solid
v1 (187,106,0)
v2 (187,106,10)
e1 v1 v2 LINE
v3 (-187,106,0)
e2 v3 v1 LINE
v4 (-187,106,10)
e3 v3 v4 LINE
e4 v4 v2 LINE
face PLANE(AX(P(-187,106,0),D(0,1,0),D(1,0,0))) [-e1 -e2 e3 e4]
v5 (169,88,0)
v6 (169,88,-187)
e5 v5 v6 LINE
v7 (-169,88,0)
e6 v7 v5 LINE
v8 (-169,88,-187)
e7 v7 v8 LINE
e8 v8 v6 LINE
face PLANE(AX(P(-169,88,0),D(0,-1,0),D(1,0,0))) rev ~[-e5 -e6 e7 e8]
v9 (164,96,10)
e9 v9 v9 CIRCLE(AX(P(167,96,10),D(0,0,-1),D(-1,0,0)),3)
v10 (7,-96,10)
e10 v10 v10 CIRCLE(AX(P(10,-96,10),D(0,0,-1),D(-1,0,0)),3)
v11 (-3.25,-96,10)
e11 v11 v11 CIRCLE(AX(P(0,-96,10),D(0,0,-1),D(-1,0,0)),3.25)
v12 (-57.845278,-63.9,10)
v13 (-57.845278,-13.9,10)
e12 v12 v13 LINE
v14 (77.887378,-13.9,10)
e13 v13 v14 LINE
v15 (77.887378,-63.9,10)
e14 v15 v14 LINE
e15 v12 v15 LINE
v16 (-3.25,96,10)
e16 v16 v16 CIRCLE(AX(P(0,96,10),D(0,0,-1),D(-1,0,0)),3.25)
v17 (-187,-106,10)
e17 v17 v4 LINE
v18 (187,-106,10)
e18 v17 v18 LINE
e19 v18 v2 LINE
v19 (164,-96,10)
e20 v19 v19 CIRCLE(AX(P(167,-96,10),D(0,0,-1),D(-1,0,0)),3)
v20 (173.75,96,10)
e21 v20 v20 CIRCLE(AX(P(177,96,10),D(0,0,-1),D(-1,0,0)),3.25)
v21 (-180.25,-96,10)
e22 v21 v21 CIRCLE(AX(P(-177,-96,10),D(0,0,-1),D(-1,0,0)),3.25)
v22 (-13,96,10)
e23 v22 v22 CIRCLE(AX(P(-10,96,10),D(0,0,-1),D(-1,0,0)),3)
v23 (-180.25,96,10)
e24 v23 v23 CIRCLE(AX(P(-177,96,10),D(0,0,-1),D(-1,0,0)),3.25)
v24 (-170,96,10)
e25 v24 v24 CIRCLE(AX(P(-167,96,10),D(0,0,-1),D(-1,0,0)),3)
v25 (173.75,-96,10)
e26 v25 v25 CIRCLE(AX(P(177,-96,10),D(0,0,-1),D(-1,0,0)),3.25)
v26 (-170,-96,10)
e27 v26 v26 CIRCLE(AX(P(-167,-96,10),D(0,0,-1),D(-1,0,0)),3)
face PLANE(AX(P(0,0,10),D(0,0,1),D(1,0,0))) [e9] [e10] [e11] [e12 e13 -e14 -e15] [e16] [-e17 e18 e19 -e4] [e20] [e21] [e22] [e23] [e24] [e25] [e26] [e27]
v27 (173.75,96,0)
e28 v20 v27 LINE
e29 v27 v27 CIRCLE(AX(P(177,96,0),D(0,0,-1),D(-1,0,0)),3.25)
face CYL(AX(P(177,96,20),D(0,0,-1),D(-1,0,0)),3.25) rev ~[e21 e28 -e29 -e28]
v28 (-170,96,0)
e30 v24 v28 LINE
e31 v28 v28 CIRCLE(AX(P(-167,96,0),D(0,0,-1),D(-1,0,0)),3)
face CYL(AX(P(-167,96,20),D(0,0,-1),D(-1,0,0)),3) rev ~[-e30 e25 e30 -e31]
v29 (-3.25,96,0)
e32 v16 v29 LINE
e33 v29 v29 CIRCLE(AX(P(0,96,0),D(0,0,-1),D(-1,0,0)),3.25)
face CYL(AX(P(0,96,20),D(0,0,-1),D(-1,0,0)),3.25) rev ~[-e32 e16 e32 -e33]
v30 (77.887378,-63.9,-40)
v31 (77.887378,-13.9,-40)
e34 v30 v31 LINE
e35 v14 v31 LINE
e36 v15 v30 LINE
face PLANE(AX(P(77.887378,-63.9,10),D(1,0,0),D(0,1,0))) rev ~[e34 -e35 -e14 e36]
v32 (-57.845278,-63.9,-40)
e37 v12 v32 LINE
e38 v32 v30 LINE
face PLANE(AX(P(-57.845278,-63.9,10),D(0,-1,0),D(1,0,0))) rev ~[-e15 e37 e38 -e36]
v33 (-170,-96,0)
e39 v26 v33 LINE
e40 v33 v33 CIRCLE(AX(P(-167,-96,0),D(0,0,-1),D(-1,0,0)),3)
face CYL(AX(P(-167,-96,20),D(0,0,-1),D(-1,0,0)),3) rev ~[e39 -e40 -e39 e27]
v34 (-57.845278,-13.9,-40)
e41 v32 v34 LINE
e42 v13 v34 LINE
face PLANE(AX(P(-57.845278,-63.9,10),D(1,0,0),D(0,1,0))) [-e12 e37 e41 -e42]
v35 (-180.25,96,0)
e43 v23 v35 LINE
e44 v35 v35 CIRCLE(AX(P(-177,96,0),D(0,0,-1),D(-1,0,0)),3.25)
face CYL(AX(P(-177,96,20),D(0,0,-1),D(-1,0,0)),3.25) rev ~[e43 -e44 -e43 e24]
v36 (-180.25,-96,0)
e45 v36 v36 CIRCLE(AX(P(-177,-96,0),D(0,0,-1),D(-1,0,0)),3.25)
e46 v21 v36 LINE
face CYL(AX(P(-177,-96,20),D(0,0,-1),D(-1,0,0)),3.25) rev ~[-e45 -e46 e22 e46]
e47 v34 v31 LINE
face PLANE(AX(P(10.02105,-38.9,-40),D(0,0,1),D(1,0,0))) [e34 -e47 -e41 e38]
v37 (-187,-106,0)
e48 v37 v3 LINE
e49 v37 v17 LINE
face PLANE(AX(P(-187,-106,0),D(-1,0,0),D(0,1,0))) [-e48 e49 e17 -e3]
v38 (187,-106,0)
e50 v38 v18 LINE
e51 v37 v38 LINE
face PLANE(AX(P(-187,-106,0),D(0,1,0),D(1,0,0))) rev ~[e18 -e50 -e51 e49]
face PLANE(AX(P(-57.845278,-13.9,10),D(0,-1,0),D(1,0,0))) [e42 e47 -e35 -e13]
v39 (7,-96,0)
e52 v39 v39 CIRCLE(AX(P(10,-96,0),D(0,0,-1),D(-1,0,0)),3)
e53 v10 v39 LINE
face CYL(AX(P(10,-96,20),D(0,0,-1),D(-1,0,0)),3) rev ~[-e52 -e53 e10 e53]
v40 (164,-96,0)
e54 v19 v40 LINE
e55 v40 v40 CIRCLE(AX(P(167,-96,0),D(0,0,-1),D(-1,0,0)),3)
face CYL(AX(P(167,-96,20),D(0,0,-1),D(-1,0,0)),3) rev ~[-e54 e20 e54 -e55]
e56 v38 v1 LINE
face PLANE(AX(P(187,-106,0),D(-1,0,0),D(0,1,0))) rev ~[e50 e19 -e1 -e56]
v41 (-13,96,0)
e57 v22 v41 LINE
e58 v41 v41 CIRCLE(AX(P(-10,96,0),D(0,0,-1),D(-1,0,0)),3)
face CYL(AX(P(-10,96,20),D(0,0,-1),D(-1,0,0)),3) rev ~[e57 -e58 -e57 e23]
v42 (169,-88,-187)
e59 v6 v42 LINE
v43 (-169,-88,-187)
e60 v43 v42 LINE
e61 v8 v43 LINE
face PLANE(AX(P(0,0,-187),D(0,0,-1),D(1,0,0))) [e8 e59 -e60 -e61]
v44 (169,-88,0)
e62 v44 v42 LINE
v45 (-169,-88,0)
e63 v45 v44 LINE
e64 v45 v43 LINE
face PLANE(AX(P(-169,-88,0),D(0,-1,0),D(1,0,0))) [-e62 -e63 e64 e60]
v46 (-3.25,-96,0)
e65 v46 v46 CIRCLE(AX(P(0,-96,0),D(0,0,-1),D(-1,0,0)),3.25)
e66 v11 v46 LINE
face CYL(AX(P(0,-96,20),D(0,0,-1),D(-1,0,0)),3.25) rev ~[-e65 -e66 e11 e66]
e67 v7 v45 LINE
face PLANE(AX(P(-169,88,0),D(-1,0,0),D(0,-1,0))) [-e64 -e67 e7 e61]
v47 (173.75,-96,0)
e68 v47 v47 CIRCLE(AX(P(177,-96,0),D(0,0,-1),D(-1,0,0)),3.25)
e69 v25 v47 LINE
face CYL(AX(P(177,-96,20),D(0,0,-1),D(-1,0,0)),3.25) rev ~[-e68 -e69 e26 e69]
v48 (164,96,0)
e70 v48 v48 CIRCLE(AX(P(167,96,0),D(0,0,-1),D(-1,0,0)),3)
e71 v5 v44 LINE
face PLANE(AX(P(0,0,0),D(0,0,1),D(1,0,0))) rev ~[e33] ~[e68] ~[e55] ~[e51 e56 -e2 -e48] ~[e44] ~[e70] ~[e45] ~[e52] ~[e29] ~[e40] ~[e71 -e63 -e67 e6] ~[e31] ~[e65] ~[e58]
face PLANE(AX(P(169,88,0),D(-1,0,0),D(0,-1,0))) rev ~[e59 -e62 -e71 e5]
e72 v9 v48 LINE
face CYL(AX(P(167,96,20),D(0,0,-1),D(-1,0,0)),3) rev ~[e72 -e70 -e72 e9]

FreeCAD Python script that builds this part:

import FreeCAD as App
import Part
import Sketcher
from FreeCAD import Vector

doc = App.newDocument("Part")
body = doc.addObject("PartDesign::Body", "Body")

# Sketch on XY plane
sketch1 = body.newObject("Sketcher::SketchObject", "Sketch")
sketch1.AttachmentSupport = (doc.getObject("XY_Plane"), [""])
sketch1.MapMode = "FlatFace"
sketch1.addGeometry([
    Part.LineSegment(Vector(-187, 106, 0), Vector(-187, -106, 0)),
    Part.LineSegment(Vector(-187, -106, 0), Vector(187, -106, 0)),
    Part.LineSegment(Vector(187, -106, 0), Vector(187, 106, 0)),
    Part.LineSegment(Vector(187, 106, 0), Vector(-187, 106, 0)),
], False)
sketch1.addConstraint([
    Sketcher.Constraint("Coincident", 0, 2, 1, 1),
    Sketcher.Constraint("Coincident", 1, 2, 2, 1),
    Sketcher.Constraint("Coincident", 2, 2, 3, 1),
    Sketcher.Constraint("Coincident", 3, 2, 0, 1),
    Sketcher.Constraint("Vertical", 0),
    Sketcher.Constraint("Horizontal", 1),
    Sketcher.Constraint("Vertical", 2),
    Sketcher.Constraint("Horizontal", 3),
    Sketcher.Constraint("Symmetric", 0, 2, 2, 2, -1, 1),
    Sketcher.Constraint("DistanceX", 1, 1, 1, 2, 374.0),
    Sketcher.Constraint("DistanceY", 0, 2, 0, 1, 212.0),
])
pad1 = body.newObject("PartDesign::Pad", "Pad")
pad1.Profile = sketch1
pad1.Length = 10

# Sketch on XY plane
sketch2 = body.newObject("Sketcher::SketchObject", "Sketch001")
sketch2.AttachmentSupport = (doc.getObject("XY_Plane"), [""])
sketch2.MapMode = "FlatFace"
sketch2.addGeometry([
    Part.LineSegment(Vector(-169, -88, 0), Vector(-169, 88, 0)),
    Part.LineSegment(Vector(-169, 88, 0), Vector(169, 88, 0)),
    Part.LineSegment(Vector(169, 88, 0), Vector(169, -88, 0)),
    Part.LineSegment(Vector(169, -88, 0), Vector(-169, -88, 0)),
], False)
sketch2.addConstraint([
    Sketcher.Constraint("Coincident", 0, 2, 1, 1),
    Sketcher.Constraint("Coincident", 1, 2, 2, 1),
    Sketcher.Constraint("Coincident", 2, 2, 3, 1),
    Sketcher.Constraint("Coincident", 3, 2, 0, 1),
    Sketcher.Constraint("Vertical", 0),
    Sketcher.Constraint("Horizontal", 1),
    Sketcher.Constraint("Vertical", 2),
    Sketcher.Constraint("Horizontal", 3),
    Sketcher.Constraint("Symmetric", 0, 2, 2, 2, -1, 1),
    Sketcher.Constraint("DistanceX", 1, 1, 1, 2, 338.0),
    Sketcher.Constraint("DistanceY", 0, 1, 0, 2, 176.0),
])
pad2 = body.newObject("PartDesign::Pad", "Pad001")
pad2.Profile = sketch2
pad2.Length = 187
pad2.Reversed = True

# Sketch on XY plane
sketch3 = body.newObject("Sketcher::SketchObject", "Sketch002")
sketch3.AttachmentSupport = (doc.getObject("XY_Plane"), [""])
sketch3.MapMode = "FlatFace"
sketch3.AttachmentOffset = App.Placement(Vector(0, 0, 10), App.Rotation())
sketch3.addGeometry([
    Part.LineSegment(Vector(-57.845278, -13.9, 0), Vector(-57.845278, -63.9, 0)),
    Part.LineSegment(Vector(-57.845278, -63.9, 0), Vector(77.887378, -63.9, 0)),
    Part.LineSegment(Vector(77.887378, -63.9, 0), Vector(77.887378, -13.9, 0)),
    Part.LineSegment(Vector(77.887378, -13.9, 0), Vector(-57.845278, -13.9, 0)),
], False)
sketch3.addConstraint([
    Sketcher.Constraint("Coincident", 0, 2, 1, 1),
    Sketcher.Constraint("Coincident", 1, 2, 2, 1),
    Sketcher.Constraint("Coincident", 2, 2, 3, 1),
    Sketcher.Constraint("Coincident", 3, 2, 0, 1),
    Sketcher.Constraint("Vertical", 0),
    Sketcher.Constraint("Horizontal", 1),
    Sketcher.Constraint("Vertical", 2),
    Sketcher.Constraint("Horizontal", 3),
    Sketcher.Constraint("DistanceY", 0, 2, 0, 1, 50.0),
    Sketcher.Constraint("DistanceY", 0, 2, -1, 1, 63.9),
    Sketcher.Constraint("DistanceX", 1, 1, 1, 2, 135.732657),
    Sketcher.Constraint("DistanceX", 0, 2, -1, 1, 57.845278),
])
pocket1 = body.newObject("PartDesign::Pocket", "Pocket")
pocket1.Profile = sketch3
pocket1.Length = 50

# Sketch on XY plane
sketch4 = body.newObject("Sketcher::SketchObject", "Sketch003")
sketch4.AttachmentSupport = (doc.getObject("XY_Plane"), [""])
sketch4.MapMode = "FlatFace"
sketch4.AttachmentOffset = App.Placement(Vector(0, 0, 10), App.Rotation())
sketch4.addGeometry([
    Part.Circle(Vector(-167, 96, 0), Vector(0, 0, 1), 3),  # 0
    Part.Circle(Vector(-167, -96, 0), Vector(0, 0, 1), 3),  # 1
    Part.Circle(Vector(167, -96, 0), Vector(0, 0, 1), 3),  # 2
    Part.Circle(Vector(167, 96, 0), Vector(0, 0, 1), 3),  # 3
    Part.Circle(Vector(-10, 96, 0), Vector(0, 0, 1), 3),  # 4
    Part.Circle(Vector(10, -96, 0), Vector(0, 0, 1), 3),  # 5
], False)
sketch4.addConstraint([
    Sketcher.Constraint("Equal", 0, 1),
    Sketcher.Constraint("Equal", 1, 2),
    Sketcher.Constraint("Equal", 2, 3),
    Sketcher.Constraint("Equal", 3, 4),
    Sketcher.Constraint("Equal", 4, 5),
    Sketcher.Constraint("Symmetric", 0, 3, 2, 3, -1, 1),
    Sketcher.Constraint("Symmetric", 1, 3, 3, 3, -1, 1),
    Sketcher.Constraint("Symmetric", 4, 3, 5, 3, -1, 1),
    Sketcher.Constraint("Symmetric", 1, 3, 2, 3, -2),
    Sketcher.Constraint("Horizontal", 3, 3, 4, 3),
    Sketcher.Constraint("Diameter", 0, 6.0),
    Sketcher.Constraint("DistanceX", 0, 3, -1, 1, 167.0),
    Sketcher.Constraint("DistanceY", -1, 1, 0, 3, 96.0),
    Sketcher.Constraint("DistanceX", 4, 3, -1, 1, 10.0),
])
doc.recompute()
hole = body.newObject("PartDesign::Hole", "Hole")
hole.Profile = sketch4
hole.ThreadType = "None"
hole.Diameter = 6
hole.DepthType = "Dimension"
hole.Depth = 10
hole.DrillPoint = "Flat"

# Sketch on XY plane
sketch5 = body.newObject("Sketcher::SketchObject", "Sketch004")
sketch5.AttachmentSupport = (doc.getObject("XY_Plane"), [""])
sketch5.MapMode = "FlatFace"
sketch5.AttachmentOffset = App.Placement(Vector(0, 0, 10), App.Rotation())
sketch5.addGeometry([
    Part.Circle(Vector(-177, 96, 0), Vector(0, 0, 1), 3.25),  # 0
    Part.Circle(Vector(-177, -96, 0), Vector(0, 0, 1), 3.25),  # 1
    Part.Circle(Vector(0, -96, 0), Vector(0, 0, 1), 3.25),  # 2
    Part.Circle(Vector(0, 96, 0), Vector(0, 0, 1), 3.25),  # 3
    Part.Circle(Vector(177, 96, 0), Vector(0, 0, 1), 3.25),  # 4
    Part.Circle(Vector(177, -96, 0), Vector(0, 0, 1), 3.25),  # 5
], False)
sketch5.addConstraint([
    Sketcher.Constraint("Equal", 0, 1),
    Sketcher.Constraint("Equal", 1, 2),
    Sketcher.Constraint("Equal", 2, 3),
    Sketcher.Constraint("Equal", 3, 4),
    Sketcher.Constraint("Equal", 4, 5),
    Sketcher.Constraint("Symmetric", 2, 3, 3, 3, -1, 1),
    Sketcher.Constraint("Symmetric", 1, 3, 4, 3, -1, 1),
    Sketcher.Constraint("Symmetric", 0, 3, 5, 3, -1, 1),
    Sketcher.Constraint("Symmetric", 0, 3, 4, 3, -2),
    Sketcher.Constraint("PointOnObject", 2, 3, -2),
    Sketcher.Constraint("Horizontal", 1, 3, 2, 3),
    Sketcher.Constraint("Diameter", 0, 6.5),
    Sketcher.Constraint("DistanceX", 0, 3, -1, 1, 177.0),
    Sketcher.Constraint("DistanceY", -1, 1, 0, 3, 96.0),
])
doc.recompute()
hole2 = body.newObject("PartDesign::Hole", "Hole001")
hole2.Profile = sketch5
hole2.ThreadType = "None"
hole2.Diameter = 6.5
hole2.DepthType = "Dimension"
hole2.Depth = 10
hole2.DrillPoint = "Flat"

doc.recompute()
